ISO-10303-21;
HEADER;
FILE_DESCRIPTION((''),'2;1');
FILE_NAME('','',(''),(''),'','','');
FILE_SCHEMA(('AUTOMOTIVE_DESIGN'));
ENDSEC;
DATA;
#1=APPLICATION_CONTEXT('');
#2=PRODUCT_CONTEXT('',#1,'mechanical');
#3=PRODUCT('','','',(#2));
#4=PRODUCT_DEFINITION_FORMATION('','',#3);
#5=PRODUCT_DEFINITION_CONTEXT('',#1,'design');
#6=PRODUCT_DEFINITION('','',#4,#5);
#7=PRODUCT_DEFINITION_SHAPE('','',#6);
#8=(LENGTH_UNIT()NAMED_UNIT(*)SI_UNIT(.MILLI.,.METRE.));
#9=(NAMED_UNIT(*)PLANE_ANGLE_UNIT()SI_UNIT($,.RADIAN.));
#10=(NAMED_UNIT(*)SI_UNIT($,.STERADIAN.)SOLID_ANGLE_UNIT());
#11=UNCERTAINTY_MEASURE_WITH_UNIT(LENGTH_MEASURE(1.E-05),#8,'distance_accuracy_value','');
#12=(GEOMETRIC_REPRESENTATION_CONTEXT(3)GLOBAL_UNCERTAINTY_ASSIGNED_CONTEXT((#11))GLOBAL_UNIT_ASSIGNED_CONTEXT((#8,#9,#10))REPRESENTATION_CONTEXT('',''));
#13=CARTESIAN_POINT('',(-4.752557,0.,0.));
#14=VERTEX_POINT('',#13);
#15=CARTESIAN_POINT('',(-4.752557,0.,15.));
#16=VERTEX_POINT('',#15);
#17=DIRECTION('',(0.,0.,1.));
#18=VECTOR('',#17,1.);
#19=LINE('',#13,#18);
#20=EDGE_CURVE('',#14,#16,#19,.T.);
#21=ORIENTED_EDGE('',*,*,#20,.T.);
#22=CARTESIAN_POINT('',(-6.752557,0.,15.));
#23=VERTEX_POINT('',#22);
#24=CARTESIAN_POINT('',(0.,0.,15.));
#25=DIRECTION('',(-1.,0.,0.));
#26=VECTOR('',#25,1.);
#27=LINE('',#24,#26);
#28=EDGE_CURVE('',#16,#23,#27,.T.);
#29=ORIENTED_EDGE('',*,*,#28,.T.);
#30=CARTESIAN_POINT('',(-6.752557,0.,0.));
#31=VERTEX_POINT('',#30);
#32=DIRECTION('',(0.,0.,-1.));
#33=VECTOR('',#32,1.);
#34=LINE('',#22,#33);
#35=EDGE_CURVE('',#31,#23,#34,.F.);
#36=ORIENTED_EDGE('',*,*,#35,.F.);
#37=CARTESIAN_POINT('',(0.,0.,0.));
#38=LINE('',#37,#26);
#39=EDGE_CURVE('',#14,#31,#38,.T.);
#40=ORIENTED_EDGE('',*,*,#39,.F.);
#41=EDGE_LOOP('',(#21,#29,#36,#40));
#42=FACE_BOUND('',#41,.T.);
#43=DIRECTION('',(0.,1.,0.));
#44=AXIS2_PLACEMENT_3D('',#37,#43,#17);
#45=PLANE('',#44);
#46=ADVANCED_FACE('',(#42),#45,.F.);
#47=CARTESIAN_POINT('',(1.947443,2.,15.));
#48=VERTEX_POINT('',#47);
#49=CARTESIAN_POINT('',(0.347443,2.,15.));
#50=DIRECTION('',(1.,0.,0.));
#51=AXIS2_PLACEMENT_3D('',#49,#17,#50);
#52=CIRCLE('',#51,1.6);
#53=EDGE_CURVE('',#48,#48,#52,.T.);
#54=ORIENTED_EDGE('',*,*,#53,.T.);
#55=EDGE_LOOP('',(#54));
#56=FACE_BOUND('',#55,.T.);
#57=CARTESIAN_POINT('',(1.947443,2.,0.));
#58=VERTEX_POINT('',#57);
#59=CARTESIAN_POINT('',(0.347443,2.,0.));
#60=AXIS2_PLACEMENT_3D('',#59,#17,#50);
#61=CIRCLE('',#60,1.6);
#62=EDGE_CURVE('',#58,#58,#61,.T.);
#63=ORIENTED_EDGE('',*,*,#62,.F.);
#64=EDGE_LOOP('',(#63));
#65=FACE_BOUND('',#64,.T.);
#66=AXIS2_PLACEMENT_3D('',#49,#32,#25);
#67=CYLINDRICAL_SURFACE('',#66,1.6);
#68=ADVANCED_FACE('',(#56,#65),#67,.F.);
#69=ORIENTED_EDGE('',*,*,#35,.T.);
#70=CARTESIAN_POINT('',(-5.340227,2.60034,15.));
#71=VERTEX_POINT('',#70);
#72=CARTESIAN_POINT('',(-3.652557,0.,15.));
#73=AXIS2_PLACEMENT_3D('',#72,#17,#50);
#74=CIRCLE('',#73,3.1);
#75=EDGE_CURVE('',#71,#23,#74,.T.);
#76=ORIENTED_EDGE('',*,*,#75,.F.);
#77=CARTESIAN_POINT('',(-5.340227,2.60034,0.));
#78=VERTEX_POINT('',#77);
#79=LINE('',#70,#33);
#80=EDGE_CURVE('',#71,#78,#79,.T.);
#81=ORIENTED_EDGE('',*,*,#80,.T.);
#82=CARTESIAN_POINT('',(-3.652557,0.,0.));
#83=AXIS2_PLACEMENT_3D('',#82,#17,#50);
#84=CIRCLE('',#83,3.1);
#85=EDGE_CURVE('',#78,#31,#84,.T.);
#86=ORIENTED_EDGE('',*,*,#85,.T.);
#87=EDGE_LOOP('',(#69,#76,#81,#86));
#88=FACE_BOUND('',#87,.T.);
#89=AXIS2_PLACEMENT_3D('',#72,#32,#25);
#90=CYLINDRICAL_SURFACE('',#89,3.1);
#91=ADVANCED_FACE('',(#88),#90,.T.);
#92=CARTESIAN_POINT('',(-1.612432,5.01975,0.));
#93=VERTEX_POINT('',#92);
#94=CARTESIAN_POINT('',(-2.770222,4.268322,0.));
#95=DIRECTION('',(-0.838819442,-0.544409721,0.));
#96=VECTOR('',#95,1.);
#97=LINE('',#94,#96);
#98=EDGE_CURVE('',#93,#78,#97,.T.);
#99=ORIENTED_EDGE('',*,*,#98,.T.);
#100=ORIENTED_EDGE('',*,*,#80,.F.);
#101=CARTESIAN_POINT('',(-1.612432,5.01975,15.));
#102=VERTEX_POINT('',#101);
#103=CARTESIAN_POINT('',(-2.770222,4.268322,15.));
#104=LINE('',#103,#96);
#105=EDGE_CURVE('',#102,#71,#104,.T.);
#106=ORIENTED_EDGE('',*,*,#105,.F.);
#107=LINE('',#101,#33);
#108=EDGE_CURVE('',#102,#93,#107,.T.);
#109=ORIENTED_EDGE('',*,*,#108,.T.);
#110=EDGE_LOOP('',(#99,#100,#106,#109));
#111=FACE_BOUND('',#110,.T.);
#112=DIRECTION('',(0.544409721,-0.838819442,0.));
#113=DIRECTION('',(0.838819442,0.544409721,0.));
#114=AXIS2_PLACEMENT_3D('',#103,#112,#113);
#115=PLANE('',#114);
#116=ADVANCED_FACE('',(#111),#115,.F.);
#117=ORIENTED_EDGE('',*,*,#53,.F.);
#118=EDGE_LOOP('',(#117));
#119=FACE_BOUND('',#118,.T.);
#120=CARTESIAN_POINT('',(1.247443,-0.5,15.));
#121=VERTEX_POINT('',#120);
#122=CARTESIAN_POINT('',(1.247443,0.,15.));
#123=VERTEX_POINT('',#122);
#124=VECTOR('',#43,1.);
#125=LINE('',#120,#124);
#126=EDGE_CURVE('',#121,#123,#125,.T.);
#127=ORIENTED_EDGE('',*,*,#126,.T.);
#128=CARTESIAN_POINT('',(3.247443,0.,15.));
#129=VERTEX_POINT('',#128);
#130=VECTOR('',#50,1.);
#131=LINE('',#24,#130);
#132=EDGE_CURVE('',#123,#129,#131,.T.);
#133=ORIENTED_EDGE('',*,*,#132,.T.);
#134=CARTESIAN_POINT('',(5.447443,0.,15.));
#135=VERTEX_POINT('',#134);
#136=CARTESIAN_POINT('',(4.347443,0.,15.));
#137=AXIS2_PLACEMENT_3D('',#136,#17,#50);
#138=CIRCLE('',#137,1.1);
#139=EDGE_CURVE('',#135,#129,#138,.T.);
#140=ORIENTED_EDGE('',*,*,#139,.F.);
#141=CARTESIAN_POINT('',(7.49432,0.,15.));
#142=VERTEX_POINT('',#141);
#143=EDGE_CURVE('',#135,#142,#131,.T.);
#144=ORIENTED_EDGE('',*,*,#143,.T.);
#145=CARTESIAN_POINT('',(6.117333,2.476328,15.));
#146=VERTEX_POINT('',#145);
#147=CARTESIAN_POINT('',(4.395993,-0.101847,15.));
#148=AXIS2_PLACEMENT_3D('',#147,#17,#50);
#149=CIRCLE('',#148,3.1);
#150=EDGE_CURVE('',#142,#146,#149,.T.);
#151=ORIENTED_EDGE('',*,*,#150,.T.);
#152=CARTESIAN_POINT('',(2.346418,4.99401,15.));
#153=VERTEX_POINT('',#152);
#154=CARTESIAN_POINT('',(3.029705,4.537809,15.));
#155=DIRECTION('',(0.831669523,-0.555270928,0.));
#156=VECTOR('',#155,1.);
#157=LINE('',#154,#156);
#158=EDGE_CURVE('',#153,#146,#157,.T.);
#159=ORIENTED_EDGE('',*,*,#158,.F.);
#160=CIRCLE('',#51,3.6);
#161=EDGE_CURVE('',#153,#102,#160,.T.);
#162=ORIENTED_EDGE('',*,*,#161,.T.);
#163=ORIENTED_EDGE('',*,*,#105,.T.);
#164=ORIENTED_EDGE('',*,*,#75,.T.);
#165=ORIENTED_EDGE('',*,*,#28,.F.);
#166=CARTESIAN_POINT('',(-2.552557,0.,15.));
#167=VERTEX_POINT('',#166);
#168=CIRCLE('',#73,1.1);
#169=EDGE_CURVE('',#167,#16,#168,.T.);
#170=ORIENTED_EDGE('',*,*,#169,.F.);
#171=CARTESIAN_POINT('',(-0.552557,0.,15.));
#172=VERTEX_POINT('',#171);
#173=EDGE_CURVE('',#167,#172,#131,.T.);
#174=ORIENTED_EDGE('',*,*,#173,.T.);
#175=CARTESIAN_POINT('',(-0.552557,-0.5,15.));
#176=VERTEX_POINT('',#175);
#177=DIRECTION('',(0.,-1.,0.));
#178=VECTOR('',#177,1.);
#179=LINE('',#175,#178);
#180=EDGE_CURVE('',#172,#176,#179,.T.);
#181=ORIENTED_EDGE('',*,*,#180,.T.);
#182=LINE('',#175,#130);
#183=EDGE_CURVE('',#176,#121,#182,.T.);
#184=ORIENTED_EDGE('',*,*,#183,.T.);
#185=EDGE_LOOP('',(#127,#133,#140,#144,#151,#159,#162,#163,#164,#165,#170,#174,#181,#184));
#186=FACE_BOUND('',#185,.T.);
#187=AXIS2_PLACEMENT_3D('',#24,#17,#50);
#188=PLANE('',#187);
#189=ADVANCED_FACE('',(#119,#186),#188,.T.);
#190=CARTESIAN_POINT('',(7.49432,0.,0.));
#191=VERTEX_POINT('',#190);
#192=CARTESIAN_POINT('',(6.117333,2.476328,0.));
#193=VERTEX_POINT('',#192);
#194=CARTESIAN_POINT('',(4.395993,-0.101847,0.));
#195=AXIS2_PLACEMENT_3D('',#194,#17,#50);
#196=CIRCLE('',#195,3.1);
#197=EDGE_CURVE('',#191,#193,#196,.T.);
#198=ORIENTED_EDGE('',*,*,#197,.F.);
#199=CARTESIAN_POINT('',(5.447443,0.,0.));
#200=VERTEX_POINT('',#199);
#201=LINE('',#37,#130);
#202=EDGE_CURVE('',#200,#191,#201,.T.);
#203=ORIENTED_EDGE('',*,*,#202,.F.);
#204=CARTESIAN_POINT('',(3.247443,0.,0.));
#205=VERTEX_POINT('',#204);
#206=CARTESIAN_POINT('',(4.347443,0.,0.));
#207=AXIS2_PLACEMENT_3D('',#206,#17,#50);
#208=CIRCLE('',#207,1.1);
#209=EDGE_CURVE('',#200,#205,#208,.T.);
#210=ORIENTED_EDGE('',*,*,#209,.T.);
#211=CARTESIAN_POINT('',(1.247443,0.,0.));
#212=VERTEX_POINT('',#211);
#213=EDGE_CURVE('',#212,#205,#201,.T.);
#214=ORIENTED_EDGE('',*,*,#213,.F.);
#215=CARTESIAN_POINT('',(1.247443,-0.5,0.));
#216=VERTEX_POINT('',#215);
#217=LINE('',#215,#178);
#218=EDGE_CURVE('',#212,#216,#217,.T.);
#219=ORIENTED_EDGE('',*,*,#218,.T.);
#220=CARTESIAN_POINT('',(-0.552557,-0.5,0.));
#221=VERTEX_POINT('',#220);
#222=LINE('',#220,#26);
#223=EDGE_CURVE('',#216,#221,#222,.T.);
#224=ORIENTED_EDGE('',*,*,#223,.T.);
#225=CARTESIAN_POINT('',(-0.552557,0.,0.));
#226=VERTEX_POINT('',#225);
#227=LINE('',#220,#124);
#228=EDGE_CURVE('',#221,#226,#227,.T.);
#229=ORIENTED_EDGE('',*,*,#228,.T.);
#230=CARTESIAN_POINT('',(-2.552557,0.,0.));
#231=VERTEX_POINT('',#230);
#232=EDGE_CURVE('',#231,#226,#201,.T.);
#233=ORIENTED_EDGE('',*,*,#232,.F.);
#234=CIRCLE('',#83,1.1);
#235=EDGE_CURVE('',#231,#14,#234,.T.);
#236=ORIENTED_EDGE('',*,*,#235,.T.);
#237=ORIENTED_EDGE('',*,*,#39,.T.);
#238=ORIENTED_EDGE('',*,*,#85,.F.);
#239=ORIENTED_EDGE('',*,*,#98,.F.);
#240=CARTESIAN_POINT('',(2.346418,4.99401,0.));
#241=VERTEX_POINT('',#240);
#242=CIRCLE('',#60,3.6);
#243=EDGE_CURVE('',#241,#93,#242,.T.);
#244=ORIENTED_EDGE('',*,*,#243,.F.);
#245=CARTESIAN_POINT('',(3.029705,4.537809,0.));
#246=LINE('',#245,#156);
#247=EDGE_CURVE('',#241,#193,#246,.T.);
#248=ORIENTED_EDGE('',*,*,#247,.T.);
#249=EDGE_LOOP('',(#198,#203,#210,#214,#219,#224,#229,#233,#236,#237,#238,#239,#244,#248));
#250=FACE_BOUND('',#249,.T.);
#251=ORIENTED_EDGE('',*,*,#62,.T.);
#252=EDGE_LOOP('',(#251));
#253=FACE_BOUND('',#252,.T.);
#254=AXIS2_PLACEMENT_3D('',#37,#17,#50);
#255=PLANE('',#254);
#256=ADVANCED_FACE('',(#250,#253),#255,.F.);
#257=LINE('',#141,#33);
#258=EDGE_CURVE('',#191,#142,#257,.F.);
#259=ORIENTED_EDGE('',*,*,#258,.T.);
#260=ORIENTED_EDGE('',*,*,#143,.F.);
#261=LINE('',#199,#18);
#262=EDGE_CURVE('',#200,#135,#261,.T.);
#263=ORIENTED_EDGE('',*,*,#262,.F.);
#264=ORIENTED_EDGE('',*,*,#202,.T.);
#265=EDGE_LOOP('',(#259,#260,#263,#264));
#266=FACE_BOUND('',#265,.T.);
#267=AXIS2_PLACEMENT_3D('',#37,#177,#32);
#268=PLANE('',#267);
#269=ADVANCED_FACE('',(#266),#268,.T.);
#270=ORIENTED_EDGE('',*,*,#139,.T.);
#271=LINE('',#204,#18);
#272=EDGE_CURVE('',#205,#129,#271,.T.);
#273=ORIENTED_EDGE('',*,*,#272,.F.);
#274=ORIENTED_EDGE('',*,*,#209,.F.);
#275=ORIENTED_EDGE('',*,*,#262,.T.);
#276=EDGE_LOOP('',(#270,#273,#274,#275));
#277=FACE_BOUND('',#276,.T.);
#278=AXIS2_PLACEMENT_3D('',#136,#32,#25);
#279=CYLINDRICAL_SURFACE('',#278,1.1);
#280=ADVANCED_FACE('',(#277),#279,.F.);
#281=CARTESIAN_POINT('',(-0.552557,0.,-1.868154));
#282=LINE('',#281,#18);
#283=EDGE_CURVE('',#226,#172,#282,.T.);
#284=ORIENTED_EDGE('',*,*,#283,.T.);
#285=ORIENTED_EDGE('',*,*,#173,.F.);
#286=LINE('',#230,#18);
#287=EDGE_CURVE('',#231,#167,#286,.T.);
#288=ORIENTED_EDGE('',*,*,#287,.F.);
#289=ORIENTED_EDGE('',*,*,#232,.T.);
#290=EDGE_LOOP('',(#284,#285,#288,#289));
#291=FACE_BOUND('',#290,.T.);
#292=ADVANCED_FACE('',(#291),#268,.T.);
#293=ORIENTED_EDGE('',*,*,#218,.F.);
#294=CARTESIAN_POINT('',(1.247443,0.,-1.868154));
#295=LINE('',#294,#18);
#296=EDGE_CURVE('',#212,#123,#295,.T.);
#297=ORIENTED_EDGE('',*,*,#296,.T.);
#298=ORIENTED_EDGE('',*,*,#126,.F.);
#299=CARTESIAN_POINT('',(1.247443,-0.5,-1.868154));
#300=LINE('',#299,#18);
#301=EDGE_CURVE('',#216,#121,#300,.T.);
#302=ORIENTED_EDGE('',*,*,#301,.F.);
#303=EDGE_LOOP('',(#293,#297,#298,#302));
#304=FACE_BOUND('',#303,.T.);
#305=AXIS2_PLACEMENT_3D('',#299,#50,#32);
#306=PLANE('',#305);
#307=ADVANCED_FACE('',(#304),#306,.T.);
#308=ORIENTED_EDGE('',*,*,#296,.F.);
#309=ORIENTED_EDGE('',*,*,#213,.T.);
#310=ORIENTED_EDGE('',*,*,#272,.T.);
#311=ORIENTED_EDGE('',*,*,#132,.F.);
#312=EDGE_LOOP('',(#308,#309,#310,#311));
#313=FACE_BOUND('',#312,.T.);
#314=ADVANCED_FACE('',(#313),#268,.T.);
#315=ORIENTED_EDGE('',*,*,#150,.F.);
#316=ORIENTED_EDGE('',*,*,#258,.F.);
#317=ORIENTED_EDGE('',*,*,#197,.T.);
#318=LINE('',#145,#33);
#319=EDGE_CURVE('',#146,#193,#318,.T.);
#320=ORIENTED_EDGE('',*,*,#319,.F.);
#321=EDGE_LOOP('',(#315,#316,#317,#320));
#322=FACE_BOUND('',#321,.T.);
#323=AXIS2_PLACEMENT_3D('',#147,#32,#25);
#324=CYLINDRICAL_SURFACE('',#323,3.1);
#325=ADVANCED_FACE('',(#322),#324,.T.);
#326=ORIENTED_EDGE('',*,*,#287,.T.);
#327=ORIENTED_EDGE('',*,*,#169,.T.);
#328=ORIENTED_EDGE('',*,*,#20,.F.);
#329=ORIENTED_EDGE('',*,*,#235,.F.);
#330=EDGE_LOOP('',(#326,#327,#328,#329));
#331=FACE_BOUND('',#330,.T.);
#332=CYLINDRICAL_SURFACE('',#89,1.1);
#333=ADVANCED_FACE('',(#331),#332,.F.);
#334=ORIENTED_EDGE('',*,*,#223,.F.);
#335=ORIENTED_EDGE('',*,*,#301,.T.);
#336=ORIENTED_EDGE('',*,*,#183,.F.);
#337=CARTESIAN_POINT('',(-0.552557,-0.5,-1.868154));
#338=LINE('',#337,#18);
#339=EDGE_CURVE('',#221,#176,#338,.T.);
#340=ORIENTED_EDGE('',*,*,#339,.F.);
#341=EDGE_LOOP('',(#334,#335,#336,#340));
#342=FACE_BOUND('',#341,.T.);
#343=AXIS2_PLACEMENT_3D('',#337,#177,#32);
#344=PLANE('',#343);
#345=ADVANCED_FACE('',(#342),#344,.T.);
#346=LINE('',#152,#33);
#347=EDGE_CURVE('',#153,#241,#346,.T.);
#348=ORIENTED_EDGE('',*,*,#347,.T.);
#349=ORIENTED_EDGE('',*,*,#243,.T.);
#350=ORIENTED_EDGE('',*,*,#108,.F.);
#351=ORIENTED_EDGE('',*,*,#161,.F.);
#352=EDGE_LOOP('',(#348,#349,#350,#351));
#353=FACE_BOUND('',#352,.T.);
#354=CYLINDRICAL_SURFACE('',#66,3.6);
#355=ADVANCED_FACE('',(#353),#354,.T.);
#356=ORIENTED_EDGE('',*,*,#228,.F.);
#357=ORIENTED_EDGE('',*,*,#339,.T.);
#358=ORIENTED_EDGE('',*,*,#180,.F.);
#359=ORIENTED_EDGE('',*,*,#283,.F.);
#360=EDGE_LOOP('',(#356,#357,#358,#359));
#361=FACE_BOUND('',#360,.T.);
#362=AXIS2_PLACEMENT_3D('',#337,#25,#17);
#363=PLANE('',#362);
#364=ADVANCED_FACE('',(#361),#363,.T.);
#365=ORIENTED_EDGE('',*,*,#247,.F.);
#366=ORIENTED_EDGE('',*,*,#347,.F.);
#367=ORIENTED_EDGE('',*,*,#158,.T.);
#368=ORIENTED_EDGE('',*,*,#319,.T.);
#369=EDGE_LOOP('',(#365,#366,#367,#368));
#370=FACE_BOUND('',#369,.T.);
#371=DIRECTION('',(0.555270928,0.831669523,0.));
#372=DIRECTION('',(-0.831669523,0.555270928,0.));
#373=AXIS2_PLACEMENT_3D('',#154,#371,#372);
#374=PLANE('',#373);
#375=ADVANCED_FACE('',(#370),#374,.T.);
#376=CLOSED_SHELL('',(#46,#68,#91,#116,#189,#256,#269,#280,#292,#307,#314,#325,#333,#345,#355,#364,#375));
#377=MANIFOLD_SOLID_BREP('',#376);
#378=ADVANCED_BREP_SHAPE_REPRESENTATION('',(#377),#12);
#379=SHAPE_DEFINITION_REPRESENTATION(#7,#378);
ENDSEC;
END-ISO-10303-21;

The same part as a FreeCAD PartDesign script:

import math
import FreeCAD as App
import Part
import Sketcher

V = App.Vector

doc = App.newDocument("Part")
body = doc.addObject("PartDesign::Body", "Body")

# Sketch on XY plane
sketch1 = body.newObject("Sketcher::SketchObject", "Sketch")
sketch1.AttachmentSupport = (doc.getObject("XY_Plane"), [""])
sketch1.MapMode = "FlatFace"
sketch1.addGeometry([
    Part.LineSegment(V(-1.6, 5, 0), V(-5.3, 2.6, 0)),  # 0
    Part.ArcOfCircle(Part.Circle(V(-3.7, 0, 0), V(0, 0, 1), 3.1), math.radians(123), math.radians(270)),  # 1
    Part.LineSegment(V(-3.7, -3.1, 0), V(4.4, -3.2, 0)),  # 2
    Part.ArcOfCircle(Part.Circle(V(4.4, -0.1, 0), V(0, 0, 1), 3.1), math.radians(-90), math.radians(56)),  # 3
    Part.LineSegment(V(6.1, 2.5, 0), V(2.3, 5, 0)),  # 4
    Part.ArcOfCircle(Part.Circle(V(0.3, 2, 0), V(0, 0, 1), 3.6), math.radians(56), math.radians(123)),  # 5
    Part.Circle(V(-3.7, 0, 0), V(0, 0, 1), 1.1),  # 6
    Part.Circle(V(4.3, 0, 0), V(0, 0, 1), 1.1),  # 7
    Part.Circle(V(0.3, 2, 0), V(0, 0, 1), 1.6),  # 8
], False)
sketch1.addConstraint([
    Sketcher.Constraint("Tangent", 0, 2, 1, 1),
    Sketcher.Constraint("Coincident", 1, 2, 2, 1),
    Sketcher.Constraint("Coincident", 2, 2, 3, 1),
    Sketcher.Constraint("Tangent", 3, 2, 4, 1),
    Sketcher.Constraint("Tangent", 4, 2, 5, 1),
    Sketcher.Constraint("Tangent", 5, 2, 0, 1),
    Sketcher.Constraint("Coincident", 6, 3, 1, 3),
    Sketcher.Constraint("Coincident", 8, 3, 5, 3),
    Sketcher.Constraint("Equal", 1, 3),
    Sketcher.Constraint("Equal", 6, 7),
    Sketcher.Constraint("PointOnObject", 1, 3, -1),
    Sketcher.Constraint("PointOnObject", 7, 3, -1),
    Sketcher.Constraint("Vertical", 6, 3, 1, 2),
    Sketcher.Constraint("Vertical", 3, 3, 2, 2),
    Sketcher.Constraint("Diameter", 6, 2.2),
    Sketcher.Constraint("Diameter", 8, 3.2),
    Sketcher.Constraint("Radius", 1, 3.1),
    Sketcher.Constraint("Radius", 5, 3.6),
    Sketcher.Constraint("DistanceY", -1, 1, 5, 3, 2.0),
    Sketcher.Constraint("DistanceX", 1, 3, 5, 3, 4.0),
    Sketcher.Constraint("DistanceX", 5, 3, 7, 3, 4.0),
    Sketcher.Constraint("Distance", 4, 4.534151),
    Sketcher.Constraint("DistanceY", -1, 1, 3, 2, 2.476328),
    Sketcher.Constraint("DistanceX", -1, 1, 4, 2, 2.346418),
])
pad1 = body.newObject("PartDesign::Pad", "Pad")
pad1.Profile = sketch1
pad1.Length = 15

# Sketch on XY plane
sketch2 = body.newObject("Sketcher::SketchObject", "Sketch001")
sketch2.AttachmentSupport = (doc.getObject("XY_Plane"), [""])
sketch2.MapMode = "FlatFace"
sketch2.AttachmentOffset = App.Placement(V(0, 0, 15), App.Rotation())
sketch2.addGeometry([
    Part.ArcOfCircle(Part.Circle(V(-3.7, 0, 0), V(0, 0, 1), 1.1), math.radians(-180), math.radians(-90)),  # 0
    Part.LineSegment(V(-4.8, 0, 0), V(-12.3, 0, 0)),  # 1
    Part.LineSegment(V(-12.3, 0, 0), V(-12.3, -4.8, 0)),  # 2
    Part.LineSegment(V(-12.3, -4.8, 0), V(12.7, -4.8, 0)),  # 3
    Part.LineSegment(V(12.7, -4.8, 0), V(12.7, 0, 0)),  # 4
    Part.LineSegment(V(12.7, 0, 0), V(5.4, 0, 0)),  # 5
    Part.ArcOfCircle(Part.Circle(V(4.3, 0, 0), V(0, 0, 1), 1.1), math.radians(180), math.radians(360)),  # 6
    Part.LineSegment(V(3.2, 0, 0), V(-2.6, 0, 0)),  # 7
    Part.ArcOfCircle(Part.Circle(V(-3.7, 0, 0), V(0, 0, 1), 1.1), math.radians(-90), math.radians(0)),  # 8
], False)
sketch2.addConstraint([
    Sketcher.Constraint("Coincident", 0, 1, 1, 1),
    Sketcher.Constraint("Coincident", 1, 2, 2, 1),
    Sketcher.Constraint("Coincident", 2, 2, 3, 1),
    Sketcher.Constraint("Coincident", 3, 2, 4, 1),
    Sketcher.Constraint("Coincident", 4, 2, 5, 1),
    Sketcher.Constraint("Coincident", 5, 2, 6, 2),
    Sketcher.Constraint("Coincident", 6, 1, 7, 1),
    Sketcher.Constraint("Coincident", 7, 2, 8, 2),
    Sketcher.Constraint("Tangent", 8, 1, 0, 2),
    Sketcher.Constraint("Horizontal", 1),
    Sketcher.Constraint("Vertical", 2),
    Sketcher.Constraint("Horizontal", 3),
    Sketcher.Constraint("Vertical", 4),
    Sketcher.Constraint("Horizontal", 5),
    Sketcher.Constraint("Horizontal", 7),
    Sketcher.Constraint("Equal", 0, 6),
    Sketcher.Constraint("Equal", 6, 8),
    Sketcher.Constraint("PointOnObject", 0, 3, -1),
    Sketcher.Constraint("PointOnObject", 6, 3, -1),
    Sketcher.Constraint("PointOnObject", 0, 1, -1),
    Sketcher.Constraint("PointOnObject", 4, 2, -1),
    Sketcher.Constraint("PointOnObject", 6, 1, -1),
    Sketcher.Constraint("Vertical", 0, 3, 8, 1),
    Sketcher.Constraint("Radius", 0, 1.1),
    Sketcher.Constraint("DistanceX", 7, 2, 7, 1, 5.8),
    Sketcher.Constraint("DistanceX", 1, 2, 1, 1, 7.506998),
    Sketcher.Constraint("DistanceX", 5, 2, 5, 1, 7.207759),
    Sketcher.Constraint("DistanceY", 2, 2, 2, 1, 4.774586),
    Sketcher.Constraint("DistanceX", 0, 3, -1, 1, 3.652557),
])
pocket1 = body.newObject("PartDesign::Pocket", "Pocket")
pocket1.Profile = sketch2
pocket1.Length = 15

# Sketch on XY plane
sketch3 = body.newObject("Sketcher::SketchObject", "Sketch002")
sketch3.AttachmentSupport = (doc.getObject("XY_Plane"), [""])
sketch3.MapMode = "FlatFace"
sketch3.AttachmentOffset = App.Placement(V(0, 0, 15), App.Rotation())
sketch3.addGeometry([
    Part.LineSegment(V(-0.6, 0, 0), V(-0.6, -0.5, 0)),
    Part.LineSegment(V(-0.6, -0.5, 0), V(1.2, -0.5, 0)),
    Part.LineSegment(V(1.2, -0.5, 0), V(1.2, 0, 0)),
    Part.LineSegment(V(1.2, 0, 0), V(-0.6, 0, 0)),
], False)
sketch3.addConstraint([
    Sketcher.Constraint("Coincident", 0, 2, 1, 1),
    Sketcher.Constraint("Coincident", 1, 2, 2, 1),
    Sketcher.Constraint("Coincident", 2, 2, 3, 1),
    Sketcher.Constraint("Coincident", 3, 2, 0, 1),
    Sketcher.Constraint("Vertical", 0),
    Sketcher.Constraint("Horizontal", 1),
    Sketcher.Constraint("Vertical", 2),
    Sketcher.Constraint("Horizontal", 3),
    Sketcher.Constraint("PointOnObject", 2, 2, -1),
    Sketcher.Constraint("DistanceX", 1, 1, 1, 2, 1.8),
    Sketcher.Constraint("DistanceY", 0, 2, 0, 1, 0.5),
    Sketcher.Constraint("DistanceX", 0, 2, -1, 1, 0.552557),
])
pad2 = body.newObject("PartDesign::Pad", "Pad001")
pad2.Profile = sketch3
pad2.Length = 15
pad2.Reversed = True

doc.recompute()
